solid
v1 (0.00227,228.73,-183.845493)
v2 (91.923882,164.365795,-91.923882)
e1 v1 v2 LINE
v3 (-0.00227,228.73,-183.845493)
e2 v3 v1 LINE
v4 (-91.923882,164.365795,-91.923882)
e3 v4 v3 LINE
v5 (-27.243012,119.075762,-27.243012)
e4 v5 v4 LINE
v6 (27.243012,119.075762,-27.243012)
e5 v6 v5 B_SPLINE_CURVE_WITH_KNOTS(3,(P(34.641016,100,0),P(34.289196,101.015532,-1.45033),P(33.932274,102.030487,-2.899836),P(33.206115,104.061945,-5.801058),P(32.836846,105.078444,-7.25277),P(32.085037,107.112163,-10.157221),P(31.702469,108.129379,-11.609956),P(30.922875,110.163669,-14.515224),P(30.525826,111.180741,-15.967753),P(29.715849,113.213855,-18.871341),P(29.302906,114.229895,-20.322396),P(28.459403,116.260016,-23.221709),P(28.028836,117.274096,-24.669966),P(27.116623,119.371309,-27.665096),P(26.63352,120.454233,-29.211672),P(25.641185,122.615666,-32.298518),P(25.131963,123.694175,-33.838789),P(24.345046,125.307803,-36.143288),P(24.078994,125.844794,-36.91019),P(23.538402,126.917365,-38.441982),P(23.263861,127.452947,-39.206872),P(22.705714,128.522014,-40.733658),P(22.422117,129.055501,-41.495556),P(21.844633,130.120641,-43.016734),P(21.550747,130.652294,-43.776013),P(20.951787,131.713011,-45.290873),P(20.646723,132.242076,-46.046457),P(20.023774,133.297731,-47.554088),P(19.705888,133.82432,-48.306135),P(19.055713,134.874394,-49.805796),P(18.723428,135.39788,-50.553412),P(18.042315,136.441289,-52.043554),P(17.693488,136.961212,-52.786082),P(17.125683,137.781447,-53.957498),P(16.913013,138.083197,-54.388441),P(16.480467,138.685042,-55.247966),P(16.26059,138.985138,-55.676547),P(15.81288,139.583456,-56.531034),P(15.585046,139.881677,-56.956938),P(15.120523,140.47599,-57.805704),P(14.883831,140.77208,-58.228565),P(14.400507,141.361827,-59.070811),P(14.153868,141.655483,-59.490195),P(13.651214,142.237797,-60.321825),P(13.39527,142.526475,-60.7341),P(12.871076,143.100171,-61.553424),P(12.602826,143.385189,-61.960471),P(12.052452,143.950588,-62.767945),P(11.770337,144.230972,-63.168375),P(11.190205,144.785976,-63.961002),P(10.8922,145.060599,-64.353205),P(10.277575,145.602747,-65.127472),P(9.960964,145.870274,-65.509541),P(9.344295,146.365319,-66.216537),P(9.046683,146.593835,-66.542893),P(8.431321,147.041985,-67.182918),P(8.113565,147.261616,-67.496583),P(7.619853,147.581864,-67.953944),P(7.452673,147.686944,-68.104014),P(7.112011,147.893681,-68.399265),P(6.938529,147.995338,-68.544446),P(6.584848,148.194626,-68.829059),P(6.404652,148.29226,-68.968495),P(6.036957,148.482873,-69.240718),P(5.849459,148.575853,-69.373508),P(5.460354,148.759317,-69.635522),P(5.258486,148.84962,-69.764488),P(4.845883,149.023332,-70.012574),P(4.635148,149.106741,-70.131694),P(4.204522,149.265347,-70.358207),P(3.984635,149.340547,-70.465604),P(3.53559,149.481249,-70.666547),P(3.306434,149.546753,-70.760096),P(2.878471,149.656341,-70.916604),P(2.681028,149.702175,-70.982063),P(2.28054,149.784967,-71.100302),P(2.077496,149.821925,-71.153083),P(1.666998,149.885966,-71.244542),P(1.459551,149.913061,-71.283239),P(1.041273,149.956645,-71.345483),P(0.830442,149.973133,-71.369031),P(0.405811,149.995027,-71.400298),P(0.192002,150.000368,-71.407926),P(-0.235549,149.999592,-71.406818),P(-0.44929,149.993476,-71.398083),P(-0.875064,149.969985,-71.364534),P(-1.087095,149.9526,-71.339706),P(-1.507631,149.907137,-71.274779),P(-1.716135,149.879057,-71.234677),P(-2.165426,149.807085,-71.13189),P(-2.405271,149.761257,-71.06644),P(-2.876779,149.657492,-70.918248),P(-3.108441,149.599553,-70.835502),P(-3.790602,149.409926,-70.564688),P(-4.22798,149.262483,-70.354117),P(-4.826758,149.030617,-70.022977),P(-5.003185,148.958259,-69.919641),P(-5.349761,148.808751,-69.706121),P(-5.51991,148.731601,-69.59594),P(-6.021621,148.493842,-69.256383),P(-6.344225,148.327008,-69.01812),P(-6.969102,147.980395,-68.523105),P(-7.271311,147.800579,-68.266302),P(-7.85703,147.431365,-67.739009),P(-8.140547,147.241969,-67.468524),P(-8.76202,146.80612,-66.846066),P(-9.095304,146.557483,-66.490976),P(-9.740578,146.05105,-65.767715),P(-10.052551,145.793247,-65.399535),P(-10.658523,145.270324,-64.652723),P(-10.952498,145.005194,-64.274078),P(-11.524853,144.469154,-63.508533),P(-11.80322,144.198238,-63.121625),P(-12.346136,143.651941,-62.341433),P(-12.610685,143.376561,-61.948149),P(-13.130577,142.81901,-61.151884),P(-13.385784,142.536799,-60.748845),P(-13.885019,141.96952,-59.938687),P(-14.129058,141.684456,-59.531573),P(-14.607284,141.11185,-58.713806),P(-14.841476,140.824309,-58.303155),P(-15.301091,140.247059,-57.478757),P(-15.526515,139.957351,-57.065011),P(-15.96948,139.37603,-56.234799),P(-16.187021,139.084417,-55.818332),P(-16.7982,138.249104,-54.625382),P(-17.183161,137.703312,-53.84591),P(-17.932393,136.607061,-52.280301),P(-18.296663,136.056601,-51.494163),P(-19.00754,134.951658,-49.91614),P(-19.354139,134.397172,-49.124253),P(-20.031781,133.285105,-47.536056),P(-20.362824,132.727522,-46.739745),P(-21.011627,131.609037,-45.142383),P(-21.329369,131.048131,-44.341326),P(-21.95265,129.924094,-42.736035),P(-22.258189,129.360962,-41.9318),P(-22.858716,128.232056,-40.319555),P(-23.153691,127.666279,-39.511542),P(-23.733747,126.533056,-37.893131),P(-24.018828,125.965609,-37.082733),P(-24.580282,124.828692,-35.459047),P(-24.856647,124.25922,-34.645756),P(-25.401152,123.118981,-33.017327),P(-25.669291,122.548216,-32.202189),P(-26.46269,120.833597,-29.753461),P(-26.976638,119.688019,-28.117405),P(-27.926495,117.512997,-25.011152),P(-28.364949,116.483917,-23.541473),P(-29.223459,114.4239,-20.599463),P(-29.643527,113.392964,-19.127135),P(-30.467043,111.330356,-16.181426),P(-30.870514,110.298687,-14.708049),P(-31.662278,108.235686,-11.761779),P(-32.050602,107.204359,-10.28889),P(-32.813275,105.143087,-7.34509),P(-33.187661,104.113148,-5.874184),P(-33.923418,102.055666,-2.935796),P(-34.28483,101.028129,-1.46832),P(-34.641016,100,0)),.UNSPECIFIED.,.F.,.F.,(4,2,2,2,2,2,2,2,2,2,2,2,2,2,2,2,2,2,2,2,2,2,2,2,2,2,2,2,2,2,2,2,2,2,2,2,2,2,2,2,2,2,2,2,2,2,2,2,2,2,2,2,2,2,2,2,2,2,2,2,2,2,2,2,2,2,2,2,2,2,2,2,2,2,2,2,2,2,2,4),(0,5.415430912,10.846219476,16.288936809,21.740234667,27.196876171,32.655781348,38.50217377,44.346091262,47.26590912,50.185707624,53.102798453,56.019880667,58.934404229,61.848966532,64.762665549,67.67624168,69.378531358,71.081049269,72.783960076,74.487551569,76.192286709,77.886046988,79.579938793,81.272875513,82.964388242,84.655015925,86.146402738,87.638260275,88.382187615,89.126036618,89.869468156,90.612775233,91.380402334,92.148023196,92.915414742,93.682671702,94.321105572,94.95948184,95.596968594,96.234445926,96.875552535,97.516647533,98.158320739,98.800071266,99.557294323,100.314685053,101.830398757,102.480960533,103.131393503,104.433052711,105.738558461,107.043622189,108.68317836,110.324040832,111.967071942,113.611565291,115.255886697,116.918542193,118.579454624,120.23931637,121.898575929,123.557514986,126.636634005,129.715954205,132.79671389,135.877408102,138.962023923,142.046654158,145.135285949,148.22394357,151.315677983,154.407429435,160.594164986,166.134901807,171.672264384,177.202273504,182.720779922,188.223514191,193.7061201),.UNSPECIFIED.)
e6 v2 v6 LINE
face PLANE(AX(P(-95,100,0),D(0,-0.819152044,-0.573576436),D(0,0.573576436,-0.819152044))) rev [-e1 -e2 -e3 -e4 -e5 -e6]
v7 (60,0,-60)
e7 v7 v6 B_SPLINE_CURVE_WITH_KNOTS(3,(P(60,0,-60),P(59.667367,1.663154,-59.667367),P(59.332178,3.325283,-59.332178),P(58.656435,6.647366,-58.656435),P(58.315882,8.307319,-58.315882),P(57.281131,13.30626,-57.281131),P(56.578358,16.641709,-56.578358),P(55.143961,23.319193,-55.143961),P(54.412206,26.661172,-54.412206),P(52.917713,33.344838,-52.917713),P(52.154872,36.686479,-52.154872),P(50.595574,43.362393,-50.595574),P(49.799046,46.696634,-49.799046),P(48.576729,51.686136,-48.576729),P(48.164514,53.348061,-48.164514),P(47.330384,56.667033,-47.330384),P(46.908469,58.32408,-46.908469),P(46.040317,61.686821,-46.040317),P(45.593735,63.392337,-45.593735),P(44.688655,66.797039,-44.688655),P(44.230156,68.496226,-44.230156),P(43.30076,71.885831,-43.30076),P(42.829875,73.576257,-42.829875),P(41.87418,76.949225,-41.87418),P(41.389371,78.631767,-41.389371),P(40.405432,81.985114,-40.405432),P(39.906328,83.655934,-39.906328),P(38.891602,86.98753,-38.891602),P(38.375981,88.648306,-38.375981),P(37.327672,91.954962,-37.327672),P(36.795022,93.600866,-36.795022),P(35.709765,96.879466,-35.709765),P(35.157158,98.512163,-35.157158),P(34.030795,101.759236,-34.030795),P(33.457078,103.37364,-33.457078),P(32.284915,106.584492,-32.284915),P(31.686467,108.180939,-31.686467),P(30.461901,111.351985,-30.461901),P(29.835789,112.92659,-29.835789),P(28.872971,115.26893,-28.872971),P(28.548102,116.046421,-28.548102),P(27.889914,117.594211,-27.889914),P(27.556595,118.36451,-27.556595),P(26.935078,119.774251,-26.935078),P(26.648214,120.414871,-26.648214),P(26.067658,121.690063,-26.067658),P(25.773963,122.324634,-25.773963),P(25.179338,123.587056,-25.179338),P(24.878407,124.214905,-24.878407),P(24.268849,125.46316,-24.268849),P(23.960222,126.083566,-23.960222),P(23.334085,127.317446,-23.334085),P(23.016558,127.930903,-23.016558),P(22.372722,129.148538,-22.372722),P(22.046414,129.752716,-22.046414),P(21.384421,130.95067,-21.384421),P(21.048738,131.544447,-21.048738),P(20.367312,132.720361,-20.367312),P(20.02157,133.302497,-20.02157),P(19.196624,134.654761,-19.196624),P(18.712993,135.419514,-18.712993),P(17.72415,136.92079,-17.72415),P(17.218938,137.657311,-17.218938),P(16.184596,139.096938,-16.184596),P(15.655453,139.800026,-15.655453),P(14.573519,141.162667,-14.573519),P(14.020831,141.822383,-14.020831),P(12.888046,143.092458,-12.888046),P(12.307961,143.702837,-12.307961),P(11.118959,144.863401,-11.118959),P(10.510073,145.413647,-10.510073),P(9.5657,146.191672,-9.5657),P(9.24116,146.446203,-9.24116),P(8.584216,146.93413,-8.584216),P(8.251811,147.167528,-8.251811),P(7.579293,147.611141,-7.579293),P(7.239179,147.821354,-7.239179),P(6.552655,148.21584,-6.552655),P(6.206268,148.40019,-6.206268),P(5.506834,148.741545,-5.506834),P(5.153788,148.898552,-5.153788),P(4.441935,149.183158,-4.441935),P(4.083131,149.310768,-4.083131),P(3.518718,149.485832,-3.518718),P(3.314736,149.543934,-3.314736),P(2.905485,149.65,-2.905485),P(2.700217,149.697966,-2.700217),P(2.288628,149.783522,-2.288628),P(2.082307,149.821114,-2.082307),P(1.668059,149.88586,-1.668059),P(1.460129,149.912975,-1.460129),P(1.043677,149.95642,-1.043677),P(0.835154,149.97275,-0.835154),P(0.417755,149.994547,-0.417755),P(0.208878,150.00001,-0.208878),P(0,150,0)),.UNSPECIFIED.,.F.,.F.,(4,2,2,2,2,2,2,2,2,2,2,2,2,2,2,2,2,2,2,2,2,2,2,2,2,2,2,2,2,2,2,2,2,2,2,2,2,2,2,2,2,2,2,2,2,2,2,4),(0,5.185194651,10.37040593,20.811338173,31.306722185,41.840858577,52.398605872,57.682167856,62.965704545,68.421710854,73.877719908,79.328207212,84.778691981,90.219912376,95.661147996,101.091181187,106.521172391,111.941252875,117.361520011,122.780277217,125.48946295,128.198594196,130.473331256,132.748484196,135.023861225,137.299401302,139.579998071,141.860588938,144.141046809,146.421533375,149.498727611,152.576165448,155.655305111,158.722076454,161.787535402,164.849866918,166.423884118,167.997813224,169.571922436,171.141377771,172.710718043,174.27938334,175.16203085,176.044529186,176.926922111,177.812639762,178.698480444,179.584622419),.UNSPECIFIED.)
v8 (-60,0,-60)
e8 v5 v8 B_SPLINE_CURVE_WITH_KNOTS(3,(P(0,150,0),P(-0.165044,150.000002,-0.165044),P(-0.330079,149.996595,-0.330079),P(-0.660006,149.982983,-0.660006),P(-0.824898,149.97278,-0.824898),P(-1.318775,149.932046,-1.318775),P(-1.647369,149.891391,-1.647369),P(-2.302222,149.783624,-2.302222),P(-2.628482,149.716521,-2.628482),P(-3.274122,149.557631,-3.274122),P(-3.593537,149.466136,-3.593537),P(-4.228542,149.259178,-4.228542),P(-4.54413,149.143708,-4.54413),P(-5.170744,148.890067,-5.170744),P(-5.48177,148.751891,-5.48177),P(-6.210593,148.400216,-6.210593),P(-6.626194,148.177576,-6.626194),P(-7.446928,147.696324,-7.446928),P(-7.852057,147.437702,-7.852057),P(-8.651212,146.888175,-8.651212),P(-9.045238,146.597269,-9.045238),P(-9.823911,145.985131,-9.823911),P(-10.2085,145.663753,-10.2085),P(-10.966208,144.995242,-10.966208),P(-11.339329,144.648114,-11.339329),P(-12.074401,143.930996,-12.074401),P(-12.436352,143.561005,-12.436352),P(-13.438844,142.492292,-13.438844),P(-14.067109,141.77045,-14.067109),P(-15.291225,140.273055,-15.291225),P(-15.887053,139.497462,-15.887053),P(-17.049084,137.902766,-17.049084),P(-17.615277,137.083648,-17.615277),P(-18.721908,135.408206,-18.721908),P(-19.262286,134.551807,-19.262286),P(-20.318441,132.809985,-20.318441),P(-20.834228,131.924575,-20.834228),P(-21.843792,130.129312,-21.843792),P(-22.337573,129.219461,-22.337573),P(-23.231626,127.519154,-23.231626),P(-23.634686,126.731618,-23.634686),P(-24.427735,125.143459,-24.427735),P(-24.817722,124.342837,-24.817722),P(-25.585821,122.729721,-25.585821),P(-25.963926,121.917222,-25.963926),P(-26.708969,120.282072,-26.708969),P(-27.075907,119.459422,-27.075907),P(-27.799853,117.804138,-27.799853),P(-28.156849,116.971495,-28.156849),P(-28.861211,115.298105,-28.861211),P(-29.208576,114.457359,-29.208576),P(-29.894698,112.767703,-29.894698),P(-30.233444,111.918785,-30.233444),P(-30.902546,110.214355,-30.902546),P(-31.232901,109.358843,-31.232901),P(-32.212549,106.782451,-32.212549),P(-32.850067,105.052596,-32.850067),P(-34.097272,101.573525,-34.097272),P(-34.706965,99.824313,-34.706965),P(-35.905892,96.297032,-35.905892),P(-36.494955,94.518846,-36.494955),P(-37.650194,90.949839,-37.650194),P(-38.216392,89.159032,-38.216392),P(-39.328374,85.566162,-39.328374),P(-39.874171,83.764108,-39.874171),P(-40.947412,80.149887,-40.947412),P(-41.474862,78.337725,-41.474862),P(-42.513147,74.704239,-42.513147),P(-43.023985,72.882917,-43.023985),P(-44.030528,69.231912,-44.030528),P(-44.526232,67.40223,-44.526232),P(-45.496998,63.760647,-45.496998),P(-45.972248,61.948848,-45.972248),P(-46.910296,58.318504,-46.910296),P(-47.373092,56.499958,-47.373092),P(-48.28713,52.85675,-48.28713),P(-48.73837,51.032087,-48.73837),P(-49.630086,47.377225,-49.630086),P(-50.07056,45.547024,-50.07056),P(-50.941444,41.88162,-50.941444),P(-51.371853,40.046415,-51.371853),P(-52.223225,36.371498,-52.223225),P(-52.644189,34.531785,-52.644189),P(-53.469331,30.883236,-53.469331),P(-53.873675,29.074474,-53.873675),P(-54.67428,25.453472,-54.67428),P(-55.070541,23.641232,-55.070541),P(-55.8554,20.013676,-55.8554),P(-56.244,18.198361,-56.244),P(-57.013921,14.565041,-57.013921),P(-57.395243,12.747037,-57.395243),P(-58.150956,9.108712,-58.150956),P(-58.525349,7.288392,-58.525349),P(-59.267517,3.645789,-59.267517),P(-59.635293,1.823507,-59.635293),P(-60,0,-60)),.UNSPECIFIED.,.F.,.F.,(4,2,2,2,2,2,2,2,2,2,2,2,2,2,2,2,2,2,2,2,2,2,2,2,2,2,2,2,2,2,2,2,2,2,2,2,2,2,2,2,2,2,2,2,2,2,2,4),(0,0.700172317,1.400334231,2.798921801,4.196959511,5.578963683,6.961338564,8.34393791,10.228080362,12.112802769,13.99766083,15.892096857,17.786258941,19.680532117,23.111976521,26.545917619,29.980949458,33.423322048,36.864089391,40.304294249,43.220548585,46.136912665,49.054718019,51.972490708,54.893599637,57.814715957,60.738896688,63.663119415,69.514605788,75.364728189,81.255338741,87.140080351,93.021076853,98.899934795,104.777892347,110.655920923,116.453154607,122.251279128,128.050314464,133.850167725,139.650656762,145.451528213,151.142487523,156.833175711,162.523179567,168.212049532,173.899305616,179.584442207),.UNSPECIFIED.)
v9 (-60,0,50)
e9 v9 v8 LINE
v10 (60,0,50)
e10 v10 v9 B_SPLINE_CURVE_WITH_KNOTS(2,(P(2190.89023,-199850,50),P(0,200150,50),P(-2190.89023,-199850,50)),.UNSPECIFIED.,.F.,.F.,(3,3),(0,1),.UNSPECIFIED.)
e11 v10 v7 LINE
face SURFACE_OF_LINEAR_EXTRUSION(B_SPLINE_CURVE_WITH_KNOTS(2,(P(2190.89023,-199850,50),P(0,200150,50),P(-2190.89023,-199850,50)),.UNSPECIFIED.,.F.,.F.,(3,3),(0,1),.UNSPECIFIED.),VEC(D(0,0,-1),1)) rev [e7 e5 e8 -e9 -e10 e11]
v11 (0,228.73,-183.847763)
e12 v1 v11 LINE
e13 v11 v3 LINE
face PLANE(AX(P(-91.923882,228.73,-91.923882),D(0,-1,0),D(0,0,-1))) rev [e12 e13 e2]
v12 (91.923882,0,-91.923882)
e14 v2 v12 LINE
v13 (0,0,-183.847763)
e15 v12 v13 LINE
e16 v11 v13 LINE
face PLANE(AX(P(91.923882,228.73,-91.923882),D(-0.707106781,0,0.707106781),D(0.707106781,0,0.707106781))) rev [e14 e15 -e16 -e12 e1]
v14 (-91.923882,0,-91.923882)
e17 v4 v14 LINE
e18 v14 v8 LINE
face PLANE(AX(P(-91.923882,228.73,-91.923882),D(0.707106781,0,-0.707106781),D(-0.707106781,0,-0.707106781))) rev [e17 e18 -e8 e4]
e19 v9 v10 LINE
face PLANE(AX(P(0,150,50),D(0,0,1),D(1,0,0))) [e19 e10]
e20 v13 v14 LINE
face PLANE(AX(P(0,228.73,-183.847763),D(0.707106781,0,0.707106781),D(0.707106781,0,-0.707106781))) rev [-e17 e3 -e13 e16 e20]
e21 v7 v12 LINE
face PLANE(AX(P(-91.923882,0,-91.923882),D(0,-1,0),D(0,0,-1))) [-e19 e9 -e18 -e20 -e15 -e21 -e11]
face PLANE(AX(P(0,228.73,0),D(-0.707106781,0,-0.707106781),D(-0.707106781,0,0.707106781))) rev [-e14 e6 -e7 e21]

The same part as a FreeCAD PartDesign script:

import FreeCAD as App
import Part
import Sketcher

V = App.Vector
Q = App.Units.Quantity

doc = App.newDocument("Part")
body = doc.addObject("PartDesign::Body", "Body")

sketch1 = doc.addObject("Sketcher::SketchObject", "Sketch")
body.addObject(sketch1)
sketch1.AttachmentSupport = (doc.XZ_Plane, [""])
sketch1.MapMode = "FlatFace"
sketch1.addGeometry([
    Part.LineSegment(V(0, 0, 0), V(92, -92, 0)),
    Part.LineSegment(V(92, -92, 0), V(0, -184, 0)),
    Part.LineSegment(V(0, -184, 0), V(-92, -92, 0)),
    Part.LineSegment(V(-92, -92, 0), V(0, 0, 0)),
], False)
sketch1.addConstraint([
    Sketcher.Constraint("Coincident", 0, 2, 1, 1),
    Sketcher.Constraint("Coincident", 1, 2, 2, 1),
    Sketcher.Constraint("Coincident", 2, 2, 3, 1),
    Sketcher.Constraint("Coincident", 3, 2, 0, 1),
    Sketcher.Constraint("Coincident", 3, 2, -1, 1),
    Sketcher.Constraint("Symmetric", 0, 2, 2, 2, -2),
    Sketcher.Constraint("PointOnObject", 1, 2, -2),
    Sketcher.Constraint("Perpendicular", 0, 1),
    Sketcher.Constraint("Perpendicular", 1, 2),
    Sketcher.Constraint("Distance", 0, Q("130 mm")),
])
pad1 = doc.addObject("PartDesign::Pad", "Pad")
body.addObject(pad1)
pad1.Profile = sketch1
pad1.Length = 228.73
pad1.Reversed = True

sketch2 = doc.addObject("Sketcher::SketchObject", "Sketch001")
body.addObject(sketch2)
sketch2.AttachmentSupport = (doc.YZ_Plane, [""])
sketch2.MapMode = "FlatFace"
sketch2.addGeometry([
    Part.LineSegment(V(100, 0, 0), V(229, -184, 0)),
    Part.LineSegment(V(229, -184, 0), V(229, 0, 0)),
    Part.LineSegment(V(229, 0, 0), V(100, 0, 0)),
], False)
sketch2.addConstraint([
    Sketcher.Constraint("Coincident", 0, 2, 1, 1),
    Sketcher.Constraint("Coincident", 1, 2, 2, 1),
    Sketcher.Constraint("Coincident", 2, 2, 0, 1),
    Sketcher.Constraint("Vertical", 1),
    Sketcher.Constraint("Horizontal", 2),
    Sketcher.Constraint("PointOnObject", 1, 2, -1),
    Sketcher.Constraint("Angle", 0, Q("-55 deg")),
    Sketcher.Constraint("DistanceX", -1, 1, 2, 2, Q("100 mm")),
    Sketcher.Constraint("DistanceX", 2, 2, 2, 1, Q("128.73159 mm")),
])
pocket1 = doc.addObject("PartDesign::Pocket", "Pocket")
body.addObject(pocket1)
pocket1.Profile = sketch2
pocket1.Length = 190
pocket1.Midplane = True

sketch3 = doc.addObject("Sketcher::SketchObject", "Sketch002")
body.addObject(sketch3)
sketch3.AttachmentSupport = (doc.XY_Plane, [""])
sketch3.MapMode = "FlatFace"
sketch3.addGeometry([
    Part.LineSegment(V(-60, 0, 0), V(60, 0, 0)),
    Part.BSplineCurve([V(-60, 0, 0), V(0, 300, 0), V(60, 0, 0)], [3, 3], [0, 1], False, 2, [1, 1, 1], False),
], False)
sketch3.addConstraint([
    Sketcher.Constraint("Block", 1),
    Sketcher.Constraint("Coincident", 0, 1, 1, 1),
    Sketcher.Constraint("Coincident", 1, 2, 0, 2),
])
pad2 = doc.addObject("PartDesign::Pad", "Pad001")
body.addObject(pad2)
pad2.Profile = sketch3
pad2.Type = "TwoLengths"
pad2.Length = 50
pad2.Length2 = 100

doc.recompute()
